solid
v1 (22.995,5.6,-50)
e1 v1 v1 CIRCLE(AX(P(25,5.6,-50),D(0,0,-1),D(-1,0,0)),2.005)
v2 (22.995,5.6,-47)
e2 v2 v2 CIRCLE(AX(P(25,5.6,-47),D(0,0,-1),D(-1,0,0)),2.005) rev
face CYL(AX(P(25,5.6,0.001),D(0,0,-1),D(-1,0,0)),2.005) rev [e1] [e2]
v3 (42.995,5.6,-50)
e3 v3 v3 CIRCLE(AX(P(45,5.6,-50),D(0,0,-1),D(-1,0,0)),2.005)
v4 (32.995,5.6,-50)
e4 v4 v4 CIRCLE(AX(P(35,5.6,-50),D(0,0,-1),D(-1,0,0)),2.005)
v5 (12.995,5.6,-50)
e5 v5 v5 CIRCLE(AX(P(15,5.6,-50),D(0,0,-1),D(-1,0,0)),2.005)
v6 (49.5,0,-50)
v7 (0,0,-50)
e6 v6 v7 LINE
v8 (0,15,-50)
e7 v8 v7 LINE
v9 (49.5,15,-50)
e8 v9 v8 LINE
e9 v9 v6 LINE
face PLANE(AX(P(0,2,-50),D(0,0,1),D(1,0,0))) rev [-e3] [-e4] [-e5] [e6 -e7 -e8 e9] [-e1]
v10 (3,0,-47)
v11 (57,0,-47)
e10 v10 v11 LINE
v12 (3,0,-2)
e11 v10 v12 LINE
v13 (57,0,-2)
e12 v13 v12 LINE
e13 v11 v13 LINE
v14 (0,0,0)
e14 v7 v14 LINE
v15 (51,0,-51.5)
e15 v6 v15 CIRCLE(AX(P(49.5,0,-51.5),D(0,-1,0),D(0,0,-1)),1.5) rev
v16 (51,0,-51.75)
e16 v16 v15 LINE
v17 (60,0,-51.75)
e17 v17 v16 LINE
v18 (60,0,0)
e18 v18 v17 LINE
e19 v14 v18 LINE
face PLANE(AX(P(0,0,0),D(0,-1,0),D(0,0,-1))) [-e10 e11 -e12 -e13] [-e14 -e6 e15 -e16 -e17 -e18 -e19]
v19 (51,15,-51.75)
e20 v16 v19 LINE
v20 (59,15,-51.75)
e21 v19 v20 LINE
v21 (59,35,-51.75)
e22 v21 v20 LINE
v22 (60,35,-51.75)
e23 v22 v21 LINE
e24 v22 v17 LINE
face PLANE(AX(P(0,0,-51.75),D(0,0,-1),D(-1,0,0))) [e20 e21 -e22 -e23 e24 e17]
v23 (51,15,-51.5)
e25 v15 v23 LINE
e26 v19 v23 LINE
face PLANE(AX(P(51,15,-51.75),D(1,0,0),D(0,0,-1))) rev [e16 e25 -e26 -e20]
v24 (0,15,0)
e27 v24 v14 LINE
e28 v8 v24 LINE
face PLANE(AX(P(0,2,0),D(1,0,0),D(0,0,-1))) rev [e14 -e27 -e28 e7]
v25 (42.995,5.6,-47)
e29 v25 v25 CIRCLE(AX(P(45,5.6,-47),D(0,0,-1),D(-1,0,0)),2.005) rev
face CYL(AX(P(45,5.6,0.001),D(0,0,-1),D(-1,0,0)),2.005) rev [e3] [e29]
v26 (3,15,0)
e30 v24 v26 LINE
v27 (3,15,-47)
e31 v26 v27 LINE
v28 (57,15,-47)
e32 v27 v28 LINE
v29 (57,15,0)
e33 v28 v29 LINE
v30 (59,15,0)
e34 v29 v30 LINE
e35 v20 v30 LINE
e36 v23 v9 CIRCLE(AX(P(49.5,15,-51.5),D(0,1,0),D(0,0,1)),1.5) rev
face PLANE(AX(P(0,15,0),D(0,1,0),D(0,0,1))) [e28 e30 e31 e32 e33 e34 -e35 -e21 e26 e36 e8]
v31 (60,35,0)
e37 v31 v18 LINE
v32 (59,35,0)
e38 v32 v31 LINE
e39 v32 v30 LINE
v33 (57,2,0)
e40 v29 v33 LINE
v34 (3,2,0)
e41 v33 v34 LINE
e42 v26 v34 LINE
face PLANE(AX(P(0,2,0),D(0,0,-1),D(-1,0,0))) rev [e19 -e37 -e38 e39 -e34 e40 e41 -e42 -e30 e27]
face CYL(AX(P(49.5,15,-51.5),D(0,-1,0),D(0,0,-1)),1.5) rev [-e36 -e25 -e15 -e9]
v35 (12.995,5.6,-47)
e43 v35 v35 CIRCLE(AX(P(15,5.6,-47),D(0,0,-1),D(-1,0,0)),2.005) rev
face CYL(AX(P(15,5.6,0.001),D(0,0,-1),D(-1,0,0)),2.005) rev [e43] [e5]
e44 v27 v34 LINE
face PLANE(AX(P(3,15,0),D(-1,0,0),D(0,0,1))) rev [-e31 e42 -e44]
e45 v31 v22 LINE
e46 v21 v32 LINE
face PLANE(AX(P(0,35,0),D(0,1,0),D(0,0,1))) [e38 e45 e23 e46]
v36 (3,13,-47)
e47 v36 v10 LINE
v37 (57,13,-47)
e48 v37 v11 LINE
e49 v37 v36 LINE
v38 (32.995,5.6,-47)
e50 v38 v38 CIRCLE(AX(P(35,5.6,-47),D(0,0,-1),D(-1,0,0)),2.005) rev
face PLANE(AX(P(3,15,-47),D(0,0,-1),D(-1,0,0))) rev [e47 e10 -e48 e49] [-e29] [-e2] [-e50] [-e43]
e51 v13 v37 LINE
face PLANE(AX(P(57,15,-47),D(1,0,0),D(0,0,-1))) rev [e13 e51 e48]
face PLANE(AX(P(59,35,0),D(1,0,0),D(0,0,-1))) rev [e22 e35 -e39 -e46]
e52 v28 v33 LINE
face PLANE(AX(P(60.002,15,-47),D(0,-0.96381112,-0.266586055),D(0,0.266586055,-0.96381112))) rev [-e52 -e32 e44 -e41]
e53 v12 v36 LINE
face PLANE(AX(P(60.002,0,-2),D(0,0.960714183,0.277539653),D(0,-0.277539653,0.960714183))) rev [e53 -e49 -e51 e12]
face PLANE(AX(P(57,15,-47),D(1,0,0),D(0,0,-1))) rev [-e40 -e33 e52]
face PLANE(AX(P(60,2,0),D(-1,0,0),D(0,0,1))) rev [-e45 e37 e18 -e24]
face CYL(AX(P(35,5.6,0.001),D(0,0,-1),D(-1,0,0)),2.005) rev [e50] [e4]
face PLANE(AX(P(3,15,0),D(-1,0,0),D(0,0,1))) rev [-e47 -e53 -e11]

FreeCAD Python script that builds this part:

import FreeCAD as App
import Part
import Sketcher

V = App.Vector
Q = App.Units.Quantity


def edges_at(feature, points):
    """Names of the edges that pass closest to the given points."""
    edges = feature.Shape.Edges
    near = lambda p: min(range(len(edges)), key=lambda i: edges[i].distToShape(Part.Vertex(*p))[0])
    return sorted({f"Edge{near(p) + 1}" for p in points})


def add_polygon(sketch, points):
    """Adds a closed chain of lines whose ends are joined by coincident constraints."""
    first, n = sketch.GeometryCount, len(points)
    for a, b in zip(points, points[1:] + points[:1]):
        sketch.addGeometry(Part.LineSegment(App.Vector(*a, 0), App.Vector(*b, 0)), False)
    for i in range(n):
        sketch.addConstraint(Sketcher.Constraint("Coincident", first + i, 2, first + (i + 1) % n, 1))

doc = App.newDocument("Part")
body = doc.addObject("PartDesign::Body", "Body")

sketch1 = doc.addObject("Sketcher::SketchObject", "Sketch")
body.addObject(sketch1)
sketch1.AttachmentSupport = (doc.XZ_Plane, [""])
sketch1.MapMode = "FlatFace"
add_polygon(sketch1, [(0, -50), (0, 0), (60, 0), (60, -50)])
sketch1.addConstraint(Sketcher.Constraint("Vertical", 0))
sketch1.addConstraint(Sketcher.Constraint("Horizontal", 1))
sketch1.addConstraint(Sketcher.Constraint("Vertical", 2))
sketch1.addConstraint(Sketcher.Constraint("Horizontal", 3))
sketch1.addConstraint(Sketcher.Constraint("Coincident", 0, 2, -1, 1))
sketch1.addConstraint(Sketcher.Constraint("DistanceX", 1, 1, 1, 2, Q("60 mm")))
sketch1.addConstraint(Sketcher.Constraint("DistanceY", 0, 1, 0, 2, Q("50 mm")))
pad1 = doc.addObject("PartDesign::Pad", "Pad")
body.addObject(pad1)
pad1.Profile = sketch1
pad1.Length = 2
pad1.Reversed = True

sketch2 = doc.addObject("Sketcher::SketchObject", "Sketch001")
body.addObject(sketch2)
sketch2.AttachmentSupport = (doc.XZ_Plane, [""])
sketch2.MapMode = "FlatFace"
sketch2.AttachmentOffset = App.Placement(V(0, 0, -2), App.Rotation())
add_polygon(sketch2, [(60, 0), (60, -50), (0, -50), (0, 0), (3, 0), (3, -47), (57, -47), (57, 0)])
sketch2.addConstraint(Sketcher.Constraint("Vertical", 0))
sketch2.addConstraint(Sketcher.Constraint("Horizontal", 1))
sketch2.addConstraint(Sketcher.Constraint("Vertical", 2))
sketch2.addConstraint(Sketcher.Constraint("Horizontal", 3))
sketch2.addConstraint(Sketcher.Constraint("Vertical", 4))
sketch2.addConstraint(Sketcher.Constraint("Horizontal", 5))
sketch2.addConstraint(Sketcher.Constraint("Vertical", 6))
sketch2.addConstraint(Sketcher.Constraint("Horizontal", 7))
sketch2.addConstraint(Sketcher.Constraint("Coincident", 2, 2, -1, 1))
sketch2.addConstraint(Sketcher.Constraint("PointOnObject", 6, 2, -1))
sketch2.addConstraint(Sketcher.Constraint("Equal", 3, 7))
sketch2.addConstraint(Sketcher.Constraint("DistanceX", 1, 2, 1, 1, Q("60 mm")))
sketch2.addConstraint(Sketcher.Constraint("DistanceX", 3, 1, 3, 2, Q("3 mm")))
sketch2.addConstraint(Sketcher.Constraint("DistanceY", 0, 2, 0, 1, Q("50 mm")))
sketch2.addConstraint(Sketcher.Constraint("DistanceY", 4, 2, 4, 1, Q("47 mm")))
pad2 = doc.addObject("PartDesign::Pad", "Pad001")
body.addObject(pad2)
pad2.Profile = sketch2
pad2.Length = 13
pad2.Reversed = True

sketch3 = doc.addObject("Sketcher::SketchObject", "Sketch002")
body.addObject(sketch3)
sketch3.AttachmentSupport = (doc.XY_Plane, [""])
sketch3.MapMode = "FlatFace"
sketch3.AttachmentOffset = App.Placement(V(0, 0, -50), App.Rotation())
add_polygon(sketch3, [(60, 15), (60, 0), (51, 0), (51, 15)])
sketch3.addConstraint(Sketcher.Constraint("Vertical", 0))
sketch3.addConstraint(Sketcher.Constraint("Horizontal", 1))
sketch3.addConstraint(Sketcher.Constraint("Vertical", 2))
sketch3.addConstraint(Sketcher.Constraint("Horizontal", 3))
sketch3.addConstraint(Sketcher.Constraint("PointOnObject", 0, 2, -1))
sketch3.addConstraint(Sketcher.Constraint("DistanceX", 1, 2, 1, 1, Q("9 mm")))
sketch3.addConstraint(Sketcher.Constraint("DistanceY", 0, 2, 0, 1, Q("15 mm")))
sketch3.addConstraint(Sketcher.Constraint("DistanceX", -1, 1, 0, 2, Q("60 mm")))
pad3 = doc.addObject("PartDesign::Pad", "Pad002")
body.addObject(pad3)
pad3.Profile = sketch3
pad3.Length = 1.75
pad3.Reversed = True
doc.recompute()

fillet = doc.addObject("PartDesign::Fillet", "Fillet")
body.addObject(fillet)
fillet.Base = (pad3, edges_at(pad3, [(51, 7.5, -50)]))
fillet.Radius = 1.5

sketch4 = doc.addObject("Sketcher::SketchObject", "Sketch003")
body.addObject(sketch4)
sketch4.AttachmentSupport = (doc.XY_Plane, [""])
sketch4.MapMode = "FlatFace"
sketch4.AttachmentOffset = App.Placement(V(0, 0, -50), App.Rotation())
sketch4.addGeometry(Part.Circle(V(45, 5.6, 0), V(0, 0, 1), 2), False)
sketch4.addConstraint(Sketcher.Constraint("Diameter", 0, Q("4.01 mm")))
sketch4.addConstraint(Sketcher.Constraint("DistanceX", -1, 1, 0, 3, Q("45 mm")))
sketch4.addConstraint(Sketcher.Constraint("DistanceY", -1, 1, 0, 3, Q("5.6 mm")))
pocket1 = doc.addObject("PartDesign::Pocket", "Pocket")
body.addObject(pocket1)
pocket1.Profile = sketch4
pocket1.Type = "UpToFirst"
pocket1.Reversed = True

sketch5 = doc.addObject("Sketcher::SketchObject", "Sketch004")
body.addObject(sketch5)
sketch5.AttachmentSupport = (doc.XY_Plane, [""])
sketch5.MapMode = "FlatFace"
sketch5.AttachmentOffset = App.Placement(V(0, 0, -50), App.Rotation())
sketch5.addGeometry(Part.Circle(V(35, 5.6, 0), V(0, 0, 1), 2), False)
sketch5.addConstraint(Sketcher.Constraint("Diameter", 0, Q("4.01 mm")))
sketch5.addConstraint(Sketcher.Constraint("DistanceX", -1, 1, 0, 3, Q("35 mm")))
sketch5.addConstraint(Sketcher.Constraint("DistanceY", -1, 1, 0, 3, Q("5.6 mm")))
pocket2 = doc.addObject("PartDesign::Pocket", "Pocket001")
body.addObject(pocket2)
pocket2.Profile = sketch5
pocket2.Type = "UpToFirst"
pocket2.Reversed = True

sketch6 = doc.addObject("Sketcher::SketchObject", "Sketch005")
body.addObject(sketch6)
sketch6.AttachmentSupport = (doc.XY_Plane, [""])
sketch6.MapMode = "FlatFace"
sketch6.AttachmentOffset = App.Placement(V(0, 0, -50), App.Rotation())
sketch6.addGeometry(Part.Circle(V(25, 5.6, 0), V(0, 0, 1), 2), False)
sketch6.addConstraint(Sketcher.Constraint("Diameter", 0, Q("4.01 mm")))
sketch6.addConstraint(Sketcher.Constraint("DistanceX", -1, 1, 0, 3, Q("25 mm")))
sketch6.addConstraint(Sketcher.Constraint("DistanceY", -1, 1, 0, 3, Q("5.6 mm")))
pocket3 = doc.addObject("PartDesign::Pocket", "Pocket002")
body.addObject(pocket3)
pocket3.Profile = sketch6
pocket3.Type = "UpToFirst"
pocket3.Reversed = True

sketch7 = doc.addObject("Sketcher::SketchObject", "Sketch006")
body.addObject(sketch7)
sketch7.AttachmentSupport = (doc.XY_Plane, [""])
sketch7.MapMode = "FlatFace"
sketch7.AttachmentOffset = App.Placement(V(0, 0, -50), App.Rotation())
sketch7.addGeometry(Part.Circle(V(15, 5.6, 0), V(0, 0, 1), 2), False)
sketch7.addConstraint(Sketcher.Constraint("Diameter", 0, Q("4.01 mm")))
sketch7.addConstraint(Sketcher.Constraint("DistanceX", -1, 1, 0, 3, Q("15 mm")))
sketch7.addConstraint(Sketcher.Constraint("DistanceY", -1, 1, 0, 3, Q("5.6 mm")))
pocket4 = doc.addObject("PartDesign::Pocket", "Pocket003")
body.addObject(pocket4)
pocket4.Profile = sketch7
pocket4.Type = "UpToFirst"
pocket4.Reversed = True

sketch8 = doc.addObject("Sketcher::SketchObject", "Sketch007")
body.addObject(sketch8)
sketch8.AttachmentSupport = (doc.XZ_Plane, [""])
sketch8.MapMode = "FlatFace"
sketch8.AttachmentOffset = App.Placement(V(0, 0, -15), App.Rotation())
add_polygon(sketch8, [(59, -51.8), (59, 0), (60, 0), (60, -51.8)])
sketch8.addConstraint(Sketcher.Constraint("Vertical", 0))
sketch8.addConstraint(Sketcher.Constraint("Horizontal", 1))
sketch8.addConstraint(Sketcher.Constraint("Vertical", 2))
sketch8.addConstraint(Sketcher.Constraint("Horizontal", 3))
sketch8.addConstraint(Sketcher.Constraint("PointOnObject", 0, 2, -1))
sketch8.addConstraint(Sketcher.Constraint("DistanceX", 1, 1, 1, 2, Q("1 mm")))
sketch8.addConstraint(Sketcher.Constraint("DistanceX", -1, 1, 0, 2, Q("59 mm")))
sketch8.addConstraint(Sketcher.Constraint("DistanceY", 0, 1, 0, 2, Q("51.75 mm")))
pad4 = doc.addObject("PartDesign::Pad", "Pad003")
body.addObject(pad4)
pad4.Profile = sketch8
pad4.Length = 20
pad4.Reversed = True

sketch9 = doc.addObject("Sketcher::SketchObject", "Sketch008")
body.addObject(sketch9)
sketch9.AttachmentSupport = (doc.XY_Plane, [""])
sketch9.MapMode = "FlatFace"
add_polygon(sketch9, [(3, 2), (3, 0), (57, 0), (57, 2)])
sketch9.addConstraint(Sketcher.Constraint("Vertical", 0))
sketch9.addConstraint(Sketcher.Constraint("Horizontal", 1))
sketch9.addConstraint(Sketcher.Constraint("Vertical", 2))
sketch9.addConstraint(Sketcher.Constraint("Horizontal", 3))
sketch9.addConstraint(Sketcher.Constraint("PointOnObject", 0, 2, -1))
sketch9.addConstraint(Sketcher.Constraint("DistanceX", 1, 1, 1, 2, Q("54 mm")))
sketch9.addConstraint(Sketcher.Constraint("DistanceY", 0, 2, 0, 1, Q("2 mm")))
sketch9.addConstraint(Sketcher.Constraint("DistanceX", -1, 1, 0, 2, Q("3 mm")))
pocket5 = doc.addObject("PartDesign::Pocket", "Pocket004")
body.addObject(pocket5)
pocket5.Profile = sketch9
pocket5.Length = 47

sketch10 = doc.addObject("Sketcher::SketchObject", "Sketch009")
body.addObject(sketch10)
sketch10.AttachmentSupport = (doc.YZ_Plane, [""])
sketch10.MapMode = "FlatFace"
sketch10.AttachmentOffset = App.Placement(V(0, 0, 3), App.Rotation())
add_polygon(sketch10, [(2, 0), (0, 0), (0, -2), (13, -47), (15, -47)])
sketch10.addConstraint(Sketcher.Constraint("Horizontal", 0))
sketch10.addConstraint(Sketcher.Constraint("Vertical", 1))
sketch10.addConstraint(Sketcher.Constraint("Horizontal", 3))
sketch10.addConstraint(Sketcher.Constraint("Coincident", 0, 2, -1, 1))
sketch10.addConstraint(Sketcher.Constraint("Equal", 0, 3))
sketch10.addConstraint(Sketcher.Constraint("Equal", 3, 1))
sketch10.addConstraint(Sketcher.Constraint("DistanceX", 0, 2, 0, 1, Q("2 mm")))
sketch10.addConstraint(Sketcher.Constraint("DistanceX", -1, 1, 2, 2, Q("13 mm")))
sketch10.addConstraint(Sketcher.Constraint("DistanceY", 2, 2, -1, 1, Q("47 mm")))
pad5 = doc.addObject("PartDesign::Pad", "Pad004")
body.addObject(pad5)
pad5.Profile = sketch10
pad5.Type = "UpToFirst"

doc.recompute()
